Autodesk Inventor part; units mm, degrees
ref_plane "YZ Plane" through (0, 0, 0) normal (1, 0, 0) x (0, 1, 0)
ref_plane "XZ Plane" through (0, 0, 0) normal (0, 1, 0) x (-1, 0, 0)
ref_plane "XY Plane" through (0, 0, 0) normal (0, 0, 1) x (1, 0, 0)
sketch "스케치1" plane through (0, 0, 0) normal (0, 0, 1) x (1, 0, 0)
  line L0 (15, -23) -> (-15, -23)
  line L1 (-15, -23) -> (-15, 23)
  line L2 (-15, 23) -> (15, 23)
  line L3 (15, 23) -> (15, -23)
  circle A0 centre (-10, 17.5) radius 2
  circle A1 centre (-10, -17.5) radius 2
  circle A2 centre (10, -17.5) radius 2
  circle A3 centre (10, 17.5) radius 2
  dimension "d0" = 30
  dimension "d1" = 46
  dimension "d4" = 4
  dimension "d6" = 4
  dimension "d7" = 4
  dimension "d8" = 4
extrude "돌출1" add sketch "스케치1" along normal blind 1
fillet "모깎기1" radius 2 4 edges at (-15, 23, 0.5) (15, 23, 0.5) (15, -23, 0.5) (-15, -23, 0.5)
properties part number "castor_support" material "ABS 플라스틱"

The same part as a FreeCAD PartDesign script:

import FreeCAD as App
import Part
import Sketcher
Q = App.Units.Quantity


def edges_at(feature, points):
    """Names of the edges that pass closest to the given points."""
    edges = feature.Shape.Edges
    near = lambda p: min(range(len(edges)), key=lambda i: edges[i].distToShape(Part.Vertex(*p))[0])
    return sorted({f"Edge{near(p) + 1}" for p in points})


def add_polygon(sketch, points):
    """Adds a closed chain of lines whose ends are joined by coincident constraints."""
    first, n = sketch.GeometryCount, len(points)
    for a, b in zip(points, points[1:] + points[:1]):
        sketch.addGeometry(Part.LineSegment(App.Vector(*a, 0), App.Vector(*b, 0)), False)
    for i in range(n):
        sketch.addConstraint(Sketcher.Constraint("Coincident", first + i, 2, first + (i + 1) % n, 1))

doc = App.newDocument("Part")
params = doc.addObject("Spreadsheet::Sheet", "Params")
for row, (alias, value) in enumerate([
    ("sketch1_diameter", "4 mm"),
    ("sketch1_width", "30 mm"),
    ("sketch1_height", "46 mm"),
    ("pad1_length", "1 mm"),
    ("fillet_radius", "2 mm"),
], start=1):
    params.set(f"A{row}", alias)
    params.set(f"B{row}", "=" + value)
    params.setAlias(f"B{row}", alias)

body = doc.addObject("PartDesign::Body", "Body")

# Sketch on XY plane
sketch1 = doc.addObject("Sketcher::SketchObject", "Sketch")
body.addObject(sketch1)
sketch1.AttachmentSupport = (doc.XY_Plane, [""])
sketch1.MapMode = "FlatFace"
add_polygon(sketch1, [(-15, -23), (15, -23), (15, 23), (-15, 23)])  # lines 0-3
sketch1.addGeometry(Part.Circle(App.Vector(-10, -17.5, 0), App.Vector(0, 0, 1), 2), False)  # 4
sketch1.addGeometry(Part.Circle(App.Vector(10, -17.5, 0), App.Vector(0, 0, 1), 2), False)  # 5
sketch1.addGeometry(Part.Circle(App.Vector(-10, 17.5, 0), App.Vector(0, 0, 1), 2), False)  # 6
sketch1.addGeometry(Part.Circle(App.Vector(10, 17.5, 0), App.Vector(0, 0, 1), 2), False)  # 7
sketch1.addConstraint([
    Sketcher.Constraint("Horizontal", 0),
    Sketcher.Constraint("Vertical", 1),
    Sketcher.Constraint("Horizontal", 2),
    Sketcher.Constraint("Vertical", 3),
    Sketcher.Constraint("Equal", 4, 5),
    Sketcher.Constraint("Equal", 5, 6),
    Sketcher.Constraint("Equal", 6, 7),
    Sketcher.Constraint("Symmetric", 5, 3, 6, 3, -1, 1),
    Sketcher.Constraint("Symmetric", 4, 3, 7, 3, -1, 1),
    Sketcher.Constraint("Symmetric", 0, 2, 2, 2, -1, 1),
    Sketcher.Constraint("Symmetric", 4, 3, 5, 3, -2),
    Sketcher.Constraint("Diameter", 4, Q("4 mm")),
    Sketcher.Constraint("DistanceX", 0, 1, 0, 2, Q("30 mm")),
    Sketcher.Constraint("DistanceY", 1, 1, 1, 2, Q("46 mm")),
    Sketcher.Constraint("DistanceX", 4, 3, -1, 1, Q("10 mm")),
    Sketcher.Constraint("DistanceY", 4, 3, 6, 3, Q("35 mm")),
])
sketch1.setExpression("Constraints[15]", "Params.sketch1_diameter")
sketch1.setExpression("Constraints[16]", "Params.sketch1_width")
sketch1.setExpression("Constraints[17]", "Params.sketch1_height")
pad1 = doc.addObject("PartDesign::Pad", "Pad")
body.addObject(pad1)
pad1.Profile = sketch1
pad1.setExpression("Length", "Params.pad1_length")
doc.recompute()

fillet = doc.addObject("PartDesign::Fillet", "Fillet")
body.addObject(fillet)
fillet.Base = (pad1, edges_at(pad1, [
    (-15, 23, 0.5),
    (15, 23, 0.5),
    (15, -23, 0.5),
    (-15, -23, 0.5),
]))
fillet.setExpression("Radius", "Params.fillet_radius")

doc.recompute()
